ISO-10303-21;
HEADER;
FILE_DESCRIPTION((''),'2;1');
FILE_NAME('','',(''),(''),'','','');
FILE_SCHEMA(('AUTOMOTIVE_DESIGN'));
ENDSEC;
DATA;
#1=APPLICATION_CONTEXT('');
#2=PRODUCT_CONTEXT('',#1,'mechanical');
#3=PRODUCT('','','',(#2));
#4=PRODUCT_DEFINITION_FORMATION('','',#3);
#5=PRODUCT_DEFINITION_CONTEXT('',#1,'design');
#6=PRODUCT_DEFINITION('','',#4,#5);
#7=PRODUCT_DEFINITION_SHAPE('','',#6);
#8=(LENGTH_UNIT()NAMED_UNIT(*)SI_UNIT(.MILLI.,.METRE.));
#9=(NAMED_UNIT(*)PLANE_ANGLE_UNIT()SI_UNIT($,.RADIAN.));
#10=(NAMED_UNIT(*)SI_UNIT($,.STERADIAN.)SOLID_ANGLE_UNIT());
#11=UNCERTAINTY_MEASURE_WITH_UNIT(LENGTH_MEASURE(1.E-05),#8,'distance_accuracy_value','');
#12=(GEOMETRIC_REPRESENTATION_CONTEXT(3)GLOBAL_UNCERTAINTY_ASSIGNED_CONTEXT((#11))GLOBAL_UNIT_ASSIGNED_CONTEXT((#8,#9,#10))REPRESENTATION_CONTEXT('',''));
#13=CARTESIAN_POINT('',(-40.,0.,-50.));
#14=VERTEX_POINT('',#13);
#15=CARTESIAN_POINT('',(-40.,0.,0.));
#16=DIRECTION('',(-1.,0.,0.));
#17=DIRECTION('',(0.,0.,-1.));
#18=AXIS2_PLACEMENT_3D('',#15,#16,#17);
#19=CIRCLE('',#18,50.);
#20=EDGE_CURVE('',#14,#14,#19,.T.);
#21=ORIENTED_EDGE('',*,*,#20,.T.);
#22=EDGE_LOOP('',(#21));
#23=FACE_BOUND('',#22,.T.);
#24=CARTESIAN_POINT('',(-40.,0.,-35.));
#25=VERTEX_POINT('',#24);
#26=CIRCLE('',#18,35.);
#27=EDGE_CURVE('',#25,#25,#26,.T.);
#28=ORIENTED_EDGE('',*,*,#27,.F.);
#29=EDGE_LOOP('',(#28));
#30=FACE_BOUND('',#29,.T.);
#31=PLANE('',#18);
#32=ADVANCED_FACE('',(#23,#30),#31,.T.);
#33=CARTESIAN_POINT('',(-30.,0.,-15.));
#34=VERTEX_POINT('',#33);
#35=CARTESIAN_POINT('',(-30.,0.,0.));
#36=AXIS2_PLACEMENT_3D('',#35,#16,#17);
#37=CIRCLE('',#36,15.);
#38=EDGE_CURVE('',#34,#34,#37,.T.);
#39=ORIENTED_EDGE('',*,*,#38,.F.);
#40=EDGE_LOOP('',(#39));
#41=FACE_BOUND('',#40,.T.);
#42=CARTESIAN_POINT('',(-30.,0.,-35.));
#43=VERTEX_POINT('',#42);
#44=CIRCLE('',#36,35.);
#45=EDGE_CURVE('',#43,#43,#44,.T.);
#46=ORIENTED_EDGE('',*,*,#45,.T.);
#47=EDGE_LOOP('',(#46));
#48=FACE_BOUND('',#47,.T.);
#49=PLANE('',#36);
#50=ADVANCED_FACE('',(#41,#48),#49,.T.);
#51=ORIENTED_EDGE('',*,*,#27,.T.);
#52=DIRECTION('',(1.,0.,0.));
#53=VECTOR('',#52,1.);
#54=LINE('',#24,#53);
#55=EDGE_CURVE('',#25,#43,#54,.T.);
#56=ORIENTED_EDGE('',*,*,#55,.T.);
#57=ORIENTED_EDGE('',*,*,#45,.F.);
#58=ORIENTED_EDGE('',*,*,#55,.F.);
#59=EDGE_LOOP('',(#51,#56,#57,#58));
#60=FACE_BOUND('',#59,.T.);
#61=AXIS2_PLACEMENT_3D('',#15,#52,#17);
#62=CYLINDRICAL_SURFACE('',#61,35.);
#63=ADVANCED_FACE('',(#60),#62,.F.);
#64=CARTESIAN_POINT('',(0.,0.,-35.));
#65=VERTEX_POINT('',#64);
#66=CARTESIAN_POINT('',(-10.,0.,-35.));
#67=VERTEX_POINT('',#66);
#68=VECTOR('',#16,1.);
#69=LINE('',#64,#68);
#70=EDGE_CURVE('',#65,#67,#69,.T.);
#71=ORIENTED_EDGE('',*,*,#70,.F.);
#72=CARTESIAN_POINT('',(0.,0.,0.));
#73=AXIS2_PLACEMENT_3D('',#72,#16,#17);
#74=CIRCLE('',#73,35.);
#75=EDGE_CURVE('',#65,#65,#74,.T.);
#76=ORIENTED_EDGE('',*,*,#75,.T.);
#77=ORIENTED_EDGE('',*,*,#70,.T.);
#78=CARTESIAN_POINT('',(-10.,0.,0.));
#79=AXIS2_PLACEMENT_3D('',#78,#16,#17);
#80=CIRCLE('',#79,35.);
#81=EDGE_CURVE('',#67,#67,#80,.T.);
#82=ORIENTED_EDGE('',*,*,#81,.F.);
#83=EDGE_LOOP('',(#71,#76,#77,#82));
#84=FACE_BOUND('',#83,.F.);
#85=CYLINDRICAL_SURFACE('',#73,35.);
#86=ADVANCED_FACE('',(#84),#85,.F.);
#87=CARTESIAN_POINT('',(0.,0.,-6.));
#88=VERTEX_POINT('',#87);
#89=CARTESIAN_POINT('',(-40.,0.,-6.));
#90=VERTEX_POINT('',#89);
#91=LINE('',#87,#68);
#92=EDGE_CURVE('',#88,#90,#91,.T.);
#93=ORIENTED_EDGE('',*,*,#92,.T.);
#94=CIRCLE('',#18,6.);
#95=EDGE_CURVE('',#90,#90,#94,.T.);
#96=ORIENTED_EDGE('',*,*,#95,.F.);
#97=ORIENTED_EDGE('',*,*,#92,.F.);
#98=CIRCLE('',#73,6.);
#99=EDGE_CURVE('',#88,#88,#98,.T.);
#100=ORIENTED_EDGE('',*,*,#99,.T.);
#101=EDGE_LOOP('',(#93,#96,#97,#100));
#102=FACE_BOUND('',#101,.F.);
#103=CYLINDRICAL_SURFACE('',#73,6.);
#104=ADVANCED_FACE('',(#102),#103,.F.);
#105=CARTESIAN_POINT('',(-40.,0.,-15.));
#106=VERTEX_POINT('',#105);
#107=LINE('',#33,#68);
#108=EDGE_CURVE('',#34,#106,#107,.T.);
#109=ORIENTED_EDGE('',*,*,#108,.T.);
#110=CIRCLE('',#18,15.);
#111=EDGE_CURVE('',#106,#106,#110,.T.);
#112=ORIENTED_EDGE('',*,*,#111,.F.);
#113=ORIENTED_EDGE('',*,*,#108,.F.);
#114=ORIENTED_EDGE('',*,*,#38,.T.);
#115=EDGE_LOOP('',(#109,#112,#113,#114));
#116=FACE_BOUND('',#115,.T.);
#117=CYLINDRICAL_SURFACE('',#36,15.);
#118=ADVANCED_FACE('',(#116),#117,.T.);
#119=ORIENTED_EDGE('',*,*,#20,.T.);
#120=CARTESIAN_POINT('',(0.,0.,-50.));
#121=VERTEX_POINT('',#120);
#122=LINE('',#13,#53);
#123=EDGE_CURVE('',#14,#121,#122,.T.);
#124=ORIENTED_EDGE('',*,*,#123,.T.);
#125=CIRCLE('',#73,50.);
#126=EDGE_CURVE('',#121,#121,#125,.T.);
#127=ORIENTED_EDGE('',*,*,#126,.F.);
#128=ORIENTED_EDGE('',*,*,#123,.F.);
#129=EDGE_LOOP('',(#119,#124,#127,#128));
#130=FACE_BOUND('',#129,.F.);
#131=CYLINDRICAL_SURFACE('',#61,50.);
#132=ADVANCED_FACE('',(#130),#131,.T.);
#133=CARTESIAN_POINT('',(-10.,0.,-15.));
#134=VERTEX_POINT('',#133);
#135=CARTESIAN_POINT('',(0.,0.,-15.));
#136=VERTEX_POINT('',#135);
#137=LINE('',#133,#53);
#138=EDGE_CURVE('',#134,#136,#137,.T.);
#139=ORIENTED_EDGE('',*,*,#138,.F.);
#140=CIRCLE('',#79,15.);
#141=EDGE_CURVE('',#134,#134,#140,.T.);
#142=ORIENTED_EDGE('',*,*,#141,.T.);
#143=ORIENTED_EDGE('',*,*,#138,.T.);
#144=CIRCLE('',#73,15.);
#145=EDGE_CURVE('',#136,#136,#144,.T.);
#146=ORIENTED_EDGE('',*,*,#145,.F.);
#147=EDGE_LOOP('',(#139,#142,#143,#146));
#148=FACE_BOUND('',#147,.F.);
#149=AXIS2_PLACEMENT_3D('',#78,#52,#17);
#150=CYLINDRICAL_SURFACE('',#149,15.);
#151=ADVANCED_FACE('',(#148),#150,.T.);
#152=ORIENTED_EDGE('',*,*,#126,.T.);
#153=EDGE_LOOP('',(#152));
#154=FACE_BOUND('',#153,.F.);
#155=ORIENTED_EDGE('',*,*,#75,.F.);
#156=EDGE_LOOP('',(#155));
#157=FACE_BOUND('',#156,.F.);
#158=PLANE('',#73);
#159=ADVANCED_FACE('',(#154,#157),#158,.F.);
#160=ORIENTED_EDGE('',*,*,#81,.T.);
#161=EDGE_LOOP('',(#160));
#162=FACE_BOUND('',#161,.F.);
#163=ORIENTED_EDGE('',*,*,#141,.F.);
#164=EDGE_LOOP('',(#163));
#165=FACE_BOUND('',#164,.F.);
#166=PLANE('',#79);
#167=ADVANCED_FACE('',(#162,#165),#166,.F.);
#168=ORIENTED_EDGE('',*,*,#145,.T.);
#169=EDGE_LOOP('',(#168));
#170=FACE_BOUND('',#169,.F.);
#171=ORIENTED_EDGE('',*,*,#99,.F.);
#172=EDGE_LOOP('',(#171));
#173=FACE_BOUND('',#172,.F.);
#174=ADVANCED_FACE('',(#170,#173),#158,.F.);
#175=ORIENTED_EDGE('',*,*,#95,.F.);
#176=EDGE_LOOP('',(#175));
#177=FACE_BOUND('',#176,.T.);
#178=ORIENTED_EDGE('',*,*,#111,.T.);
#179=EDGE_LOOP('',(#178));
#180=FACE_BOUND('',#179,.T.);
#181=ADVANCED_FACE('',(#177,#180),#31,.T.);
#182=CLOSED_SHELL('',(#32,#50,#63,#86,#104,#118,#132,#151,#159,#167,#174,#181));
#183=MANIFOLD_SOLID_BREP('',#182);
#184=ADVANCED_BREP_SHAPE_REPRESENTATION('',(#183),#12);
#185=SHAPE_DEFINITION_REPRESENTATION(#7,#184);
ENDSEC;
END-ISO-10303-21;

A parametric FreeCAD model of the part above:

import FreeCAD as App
import Part
import Sketcher

V = App.Vector

doc = App.newDocument("Part")
body = doc.addObject("PartDesign::Body", "Body")

# Sketch on XZ plane
sketch1 = doc.addObject("Sketcher::SketchObject", "Sketch")
body.addObject(sketch1)
sketch1.AttachmentSupport = (doc.XZ_Plane, [""])
sketch1.MapMode = "FlatFace"
sketch1.addGeometry([
    Part.LineSegment(V(-40, -6, 0), V(0, -6, 0)),  # 0
    Part.LineSegment(V(0, -6, 0), V(0, -15, 0)),  # 1
    Part.LineSegment(V(0, -15, 0), V(-10, -15, 0)),  # 2
    Part.LineSegment(V(-10, -15, 0), V(-10, -35, 0)),  # 3
    Part.LineSegment(V(-10, -35, 0), V(0, -35, 0)),  # 4
    Part.LineSegment(V(0, -35, 0), V(0, -50, 0)),  # 5
    Part.LineSegment(V(0, -50, 0), V(-40, -50, 0)),  # 6
    Part.LineSegment(V(-40, -50, 0), V(-40, -35, 0)),  # 7
    Part.LineSegment(V(-40, -35, 0), V(-30, -35, 0)),  # 8
    Part.LineSegment(V(-30, -35, 0), V(-30, -15, 0)),  # 9
    Part.LineSegment(V(-30, -15, 0), V(-40, -15, 0)),  # 10
    Part.LineSegment(V(-40, -15, 0), V(-40, -6, 0)),  # 11
], False)
sketch1.addConstraint([
    Sketcher.Constraint("Coincident", 0, 2, 1, 1),
    Sketcher.Constraint("Coincident", 1, 2, 2, 1),
    Sketcher.Constraint("Coincident", 2, 2, 3, 1),
    Sketcher.Constraint("Coincident", 3, 2, 4, 1),
    Sketcher.Constraint("Coincident", 4, 2, 5, 1),
    Sketcher.Constraint("Coincident", 5, 2, 6, 1),
    Sketcher.Constraint("Coincident", 6, 2, 7, 1),
    Sketcher.Constraint("Coincident", 7, 2, 8, 1),
    Sketcher.Constraint("Coincident", 8, 2, 9, 1),
    Sketcher.Constraint("Coincident", 9, 2, 10, 1),
    Sketcher.Constraint("Coincident", 10, 2, 11, 1),
    Sketcher.Constraint("Coincident", 11, 2, 0, 1),
    Sketcher.Constraint("Horizontal", 0),
    Sketcher.Constraint("Vertical", 1),
    Sketcher.Constraint("Horizontal", 2),
    Sketcher.Constraint("Vertical", 3),
    Sketcher.Constraint("Horizontal", 4),
    Sketcher.Constraint("Vertical", 5),
    Sketcher.Constraint("Horizontal", 6),
    Sketcher.Constraint("Vertical", 7),
    Sketcher.Constraint("Horizontal", 8),
    Sketcher.Constraint("Vertical", 9),
    Sketcher.Constraint("Horizontal", 10),
    Sketcher.Constraint("Vertical", 11),
    Sketcher.Constraint("PointOnObject", 0, 2, -2),
    Sketcher.Constraint("PointOnObject", 4, 2, -2),
    Sketcher.Constraint("Horizontal", 4, 2, 7, 2),
    Sketcher.Constraint("Horizontal", 2, 2, 9, 2),
    Sketcher.Constraint("Vertical", 7, 2, 10, 2),
    Sketcher.Constraint("Equal", 4, 8),
    Sketcher.Constraint("DistanceX", 0, 1, 0, 2, 40.0),
    Sketcher.Constraint("DistanceX", 2, 2, 2, 1, 10.0),
    Sketcher.Constraint("DistanceY", 3, 2, 3, 1, 20.0),
    Sketcher.Constraint("DistanceY", 5, 2, 5, 1, 15.0),
    Sketcher.Constraint("DistanceY", 0, 2, -1, 1, 6.0),
    Sketcher.Constraint("DistanceY", 1, 2, -1, 1, 15.0),
])
revolution = doc.addObject("PartDesign::Revolution", "Revolution")
body.addObject(revolution)
revolution.Profile = sketch1
revolution.ReferenceAxis = (sketch1, ["H_Axis"])
revolution.Angle = 360

doc.recompute()
